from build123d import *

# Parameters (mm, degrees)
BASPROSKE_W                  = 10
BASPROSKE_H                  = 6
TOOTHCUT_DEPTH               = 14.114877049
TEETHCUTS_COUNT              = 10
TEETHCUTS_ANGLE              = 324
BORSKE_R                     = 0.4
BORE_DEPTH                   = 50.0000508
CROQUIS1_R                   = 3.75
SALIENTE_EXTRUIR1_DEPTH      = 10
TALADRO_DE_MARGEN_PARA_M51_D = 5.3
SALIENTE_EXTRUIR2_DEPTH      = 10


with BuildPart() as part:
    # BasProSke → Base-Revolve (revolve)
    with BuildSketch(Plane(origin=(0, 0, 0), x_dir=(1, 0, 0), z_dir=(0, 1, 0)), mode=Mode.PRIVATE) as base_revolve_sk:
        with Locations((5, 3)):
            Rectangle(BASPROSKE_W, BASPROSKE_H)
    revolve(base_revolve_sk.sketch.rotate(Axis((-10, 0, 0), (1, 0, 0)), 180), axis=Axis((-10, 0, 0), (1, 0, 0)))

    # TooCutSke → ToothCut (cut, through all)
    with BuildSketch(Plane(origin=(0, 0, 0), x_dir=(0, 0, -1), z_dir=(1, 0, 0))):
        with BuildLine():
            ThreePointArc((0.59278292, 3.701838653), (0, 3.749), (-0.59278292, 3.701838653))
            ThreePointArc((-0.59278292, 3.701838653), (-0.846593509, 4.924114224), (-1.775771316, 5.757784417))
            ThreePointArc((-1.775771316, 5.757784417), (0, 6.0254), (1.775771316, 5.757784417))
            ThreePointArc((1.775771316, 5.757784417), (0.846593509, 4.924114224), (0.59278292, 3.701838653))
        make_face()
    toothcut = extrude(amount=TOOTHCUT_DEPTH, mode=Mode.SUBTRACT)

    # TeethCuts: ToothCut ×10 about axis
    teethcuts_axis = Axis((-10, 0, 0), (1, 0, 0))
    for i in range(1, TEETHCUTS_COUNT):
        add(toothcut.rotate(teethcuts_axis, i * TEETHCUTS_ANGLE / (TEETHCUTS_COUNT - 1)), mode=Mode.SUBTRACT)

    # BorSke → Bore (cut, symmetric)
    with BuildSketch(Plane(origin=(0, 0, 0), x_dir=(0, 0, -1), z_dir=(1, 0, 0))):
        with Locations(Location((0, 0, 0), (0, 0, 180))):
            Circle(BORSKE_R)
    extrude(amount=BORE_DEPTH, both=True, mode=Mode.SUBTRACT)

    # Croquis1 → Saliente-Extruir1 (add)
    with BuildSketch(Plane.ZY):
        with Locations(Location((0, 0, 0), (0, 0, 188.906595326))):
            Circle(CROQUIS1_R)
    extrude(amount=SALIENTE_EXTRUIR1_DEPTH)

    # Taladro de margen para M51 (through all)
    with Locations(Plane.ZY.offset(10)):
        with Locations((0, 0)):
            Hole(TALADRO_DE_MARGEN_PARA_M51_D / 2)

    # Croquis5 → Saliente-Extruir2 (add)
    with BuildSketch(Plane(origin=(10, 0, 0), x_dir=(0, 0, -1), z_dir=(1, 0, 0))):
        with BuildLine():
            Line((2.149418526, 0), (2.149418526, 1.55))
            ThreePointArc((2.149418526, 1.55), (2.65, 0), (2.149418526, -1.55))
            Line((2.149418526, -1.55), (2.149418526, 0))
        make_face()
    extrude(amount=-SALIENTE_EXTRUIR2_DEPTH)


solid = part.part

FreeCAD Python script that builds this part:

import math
import FreeCAD as App
import Part
import Sketcher
from FreeCAD import Vector


def add_polygon(sketch, points):
    """Adds a closed chain of lines whose ends are joined by coincident constraints."""
    first, n = sketch.GeometryCount, len(points)
    for a, b in zip(points, points[1:] + points[:1]):
        sketch.addGeometry(Part.LineSegment(App.Vector(*a, 0), App.Vector(*b, 0)), False)
    for i in range(n):
        sketch.addConstraint(Sketcher.Constraint("Coincident", first + i, 2, first + (i + 1) % n, 1))

doc = App.newDocument("Part")
params = doc.addObject("Spreadsheet::Sheet", "Params")
for row, (alias, value) in enumerate([
    ("sketch1_width", "10 mm"),
    ("sketch1_height", "6 mm"),
    ("revolution_angle", "360 deg"),
    ("sketch2_radius", "2 mm"),
    ("sketch3_diameter", "0.8 mm"),
    ("pocket2_length", "100.000102 mm"),
    ("sketch4_diameter", "7.5 mm"),
    ("pad1_length", "10 mm"),
    ("sketch5_diameter", "5.3 mm"),
    ("hole_diameter", "5.3 mm"),
    ("sketch6_radius", "2.65 mm"),
    ("sketch6_width", "3.1 mm"),
    ("pad2_length", "10 mm"),
], start=1):
    params.set(f"A{row}", alias)
    params.set(f"B{row}", "=" + value)
    params.setAlias(f"B{row}", alias)

body = doc.addObject("PartDesign::Body", "Body")

# Sketch on XZ plane
sketch1 = body.newObject("Sketcher::SketchObject", "Sketch")
sketch1.AttachmentSupport = (doc.getObject("XZ_Plane"), [""])
sketch1.MapMode = "FlatFace"
add_polygon(sketch1, [(0, -6), (0, 0), (10, 0), (10, -6)])  # lines 0-3
sketch1.addConstraint([
    Sketcher.Constraint("Vertical", 0),
    Sketcher.Constraint("Horizontal", 1),
    Sketcher.Constraint("Vertical", 2),
    Sketcher.Constraint("Horizontal", 3),
    Sketcher.Constraint("Coincident", 0, 2, -1, 1),
    Sketcher.Constraint("DistanceX", 1, 1, 1, 2, 10.0),
    Sketcher.Constraint("DistanceY", 0, 1, 0, 2, 6.0),
])
sketch1.setExpression("Constraints[9]", "Params.sketch1_width")
sketch1.setExpression("Constraints[10]", "Params.sketch1_height")
revolution = body.newObject("PartDesign::Revolution", "Revolution")
revolution.Profile = sketch1
revolution.ReferenceAxis = (sketch1, ["H_Axis"])
revolution.setExpression("Angle", "Params.revolution_angle")

# Sketch on YZ plane
sketch2 = body.newObject("Sketcher::SketchObject", "Sketch001")
sketch2.AttachmentSupport = (doc.getObject("YZ_Plane"), [""])
sketch2.MapMode = "FlatFace"
sketch2.addGeometry([
    Part.ArcOfCircle(Part.Circle(Vector(0, 0, 0), Vector(0, 0, 1), 3.7), math.radians(-9.1), math.radians(9.1)),
    Part.ArcOfCircle(Part.Circle(Vector(3.9, -2.6, 0), Vector(0, 0, 1), 2), math.radians(24), math.radians(96)),
    Part.ArcOfCircle(Part.Circle(Vector(0, 0, 0), Vector(0, 0, 1), 6), math.radians(-17), math.radians(17)),
    Part.ArcOfCircle(Part.Circle(Vector(3.9, 2.6, 0), Vector(0, 0, 1), 2), math.radians(-96), math.radians(-24)),
], False)
sketch2.addConstraint([
    Sketcher.Constraint("Coincident", 0, 1, 1, 2),
    Sketcher.Constraint("Coincident", 1, 1, 2, 1),
    Sketcher.Constraint("Coincident", 2, 2, 3, 2),
    Sketcher.Constraint("Coincident", 3, 1, 0, 2),
    Sketcher.Constraint("Coincident", 0, 3, -1, 1),
    Sketcher.Constraint("Coincident", 2, 3, -1, 1),
    Sketcher.Constraint("Equal", 1, 3),
    Sketcher.Constraint("Symmetric", 1, 3, 3, 3, -1),
    Sketcher.Constraint("Radius", 1, 2.0),
    Sketcher.Constraint("Radius", 0, 3.749),
    Sketcher.Constraint("Radius", 2, 6.0254),
    Sketcher.Constraint("DistanceX", -1, 1, 0, 1, 3.701839),
    Sketcher.Constraint("DistanceY", 1, 1, -1, 1, 1.775771),
])
sketch2.setExpression("Constraints[8]", "Params.sketch2_radius")
pocket1 = body.newObject("PartDesign::Pocket", "Pocket")
pocket1.Profile = sketch2
pocket1.Type = "ThroughAll"
pocket1.Reversed = True
doc.recompute()

polarpattern = body.newObject("PartDesign::PolarPattern", "PolarPattern")
polarpattern.Originals = [pocket1]
polarpattern.Axis = (doc.getObject("X_Axis"), [""])
polarpattern.Angle = 360
polarpattern.Occurrences = 10
body.Tip = polarpattern

# Sketch on YZ plane
sketch3 = body.newObject("Sketcher::SketchObject", "Sketch002")
sketch3.AttachmentSupport = (doc.getObject("YZ_Plane"), [""])
sketch3.MapMode = "FlatFace"
sketch3.addGeometry(Part.Circle(Vector(0, 0, 0), Vector(0, 0, 1), 0.4), False)
sketch3.addConstraint([
    Sketcher.Constraint("Coincident", 0, 3, -1, 1),
    Sketcher.Constraint("Diameter", 0, 0.8),
])
sketch3.setExpression("Constraints[1]", "Params.sketch3_diameter")
pocket2 = body.newObject("PartDesign::Pocket", "Pocket001")
pocket2.Profile = sketch3
pocket2.setExpression("Length", "Params.pocket2_length")
pocket2.Midplane = True

# Sketch on YZ plane
sketch4 = body.newObject("Sketcher::SketchObject", "Sketch003")
sketch4.AttachmentSupport = (doc.getObject("YZ_Plane"), [""])
sketch4.MapMode = "FlatFace"
sketch4.addGeometry(Part.Circle(Vector(0, 0, 0), Vector(0, 0, 1), 3.8), False)
sketch4.addConstraint([
    Sketcher.Constraint("Coincident", 0, 3, -1, 1),
    Sketcher.Constraint("Diameter", 0, 7.5),
])
sketch4.setExpression("Constraints[1]", "Params.sketch4_diameter")
pad1 = body.newObject("PartDesign::Pad", "Pad")
pad1.Profile = sketch4
pad1.setExpression("Length", "Params.pad1_length")
pad1.Reversed = True

# Sketch on YZ plane
sketch5 = body.newObject("Sketcher::SketchObject", "Sketch004")
sketch5.AttachmentSupport = (doc.getObject("YZ_Plane"), [""])
sketch5.MapMode = "FlatFace"
sketch5.AttachmentOffset = App.Placement(Vector(0, 0, -10), App.Rotation())
sketch5.addGeometry(Part.Circle(Vector(0, 0, 0), Vector(0, 0, 1), 2.6), False)
sketch5.addConstraint([
    Sketcher.Constraint("Coincident", 0, 3, -1, 1),
    Sketcher.Constraint("Diameter", 0, 5.3),
])
sketch5.setExpression("Constraints[1]", "Params.sketch5_diameter")
doc.recompute()
hole = body.newObject("PartDesign::Hole", "Hole")
hole.Profile = sketch5
hole.ThreadType = "None"
hole.setExpression("Diameter", "Params.hole_diameter")
hole.DepthType = "ThroughAll"
hole.Reversed = True

# Sketch on YZ plane
sketch6 = body.newObject("Sketcher::SketchObject", "Sketch005")
sketch6.AttachmentSupport = (doc.getObject("YZ_Plane"), [""])
sketch6.MapMode = "FlatFace"
sketch6.AttachmentOffset = App.Placement(Vector(0, 0, 10), App.Rotation())
sketch6.addGeometry([
    Part.ArcOfCircle(Part.Circle(Vector(0, 0, 0), Vector(0, 0, 1), 2.6), math.radians(-126), math.radians(-54)),
    Part.LineSegment(Vector(1.6, -2.1, 0), Vector(-1.6, -2.1, 0)),
], False)
sketch6.addConstraint([
    Sketcher.Constraint("Coincident", 0, 1, 1, 2),
    Sketcher.Constraint("Coincident", 1, 1, 0, 2),
    Sketcher.Constraint("Horizontal", 1),
    Sketcher.Constraint("Coincident", 0, 3, -1, 1),
    Sketcher.Constraint("Radius", 0, 2.65),
    Sketcher.Constraint("DistanceX", 1, 2, 1, 1, 3.1),
])
sketch6.setExpression("Constraints[4]", "Params.sketch6_radius")
sketch6.setExpression("Constraints[5]", "Params.sketch6_width")
pad2 = body.newObject("PartDesign::Pad", "Pad001")
pad2.Profile = sketch6
pad2.setExpression("Length", "Params.pad2_length")
pad2.Reversed = True

doc.recompute()
